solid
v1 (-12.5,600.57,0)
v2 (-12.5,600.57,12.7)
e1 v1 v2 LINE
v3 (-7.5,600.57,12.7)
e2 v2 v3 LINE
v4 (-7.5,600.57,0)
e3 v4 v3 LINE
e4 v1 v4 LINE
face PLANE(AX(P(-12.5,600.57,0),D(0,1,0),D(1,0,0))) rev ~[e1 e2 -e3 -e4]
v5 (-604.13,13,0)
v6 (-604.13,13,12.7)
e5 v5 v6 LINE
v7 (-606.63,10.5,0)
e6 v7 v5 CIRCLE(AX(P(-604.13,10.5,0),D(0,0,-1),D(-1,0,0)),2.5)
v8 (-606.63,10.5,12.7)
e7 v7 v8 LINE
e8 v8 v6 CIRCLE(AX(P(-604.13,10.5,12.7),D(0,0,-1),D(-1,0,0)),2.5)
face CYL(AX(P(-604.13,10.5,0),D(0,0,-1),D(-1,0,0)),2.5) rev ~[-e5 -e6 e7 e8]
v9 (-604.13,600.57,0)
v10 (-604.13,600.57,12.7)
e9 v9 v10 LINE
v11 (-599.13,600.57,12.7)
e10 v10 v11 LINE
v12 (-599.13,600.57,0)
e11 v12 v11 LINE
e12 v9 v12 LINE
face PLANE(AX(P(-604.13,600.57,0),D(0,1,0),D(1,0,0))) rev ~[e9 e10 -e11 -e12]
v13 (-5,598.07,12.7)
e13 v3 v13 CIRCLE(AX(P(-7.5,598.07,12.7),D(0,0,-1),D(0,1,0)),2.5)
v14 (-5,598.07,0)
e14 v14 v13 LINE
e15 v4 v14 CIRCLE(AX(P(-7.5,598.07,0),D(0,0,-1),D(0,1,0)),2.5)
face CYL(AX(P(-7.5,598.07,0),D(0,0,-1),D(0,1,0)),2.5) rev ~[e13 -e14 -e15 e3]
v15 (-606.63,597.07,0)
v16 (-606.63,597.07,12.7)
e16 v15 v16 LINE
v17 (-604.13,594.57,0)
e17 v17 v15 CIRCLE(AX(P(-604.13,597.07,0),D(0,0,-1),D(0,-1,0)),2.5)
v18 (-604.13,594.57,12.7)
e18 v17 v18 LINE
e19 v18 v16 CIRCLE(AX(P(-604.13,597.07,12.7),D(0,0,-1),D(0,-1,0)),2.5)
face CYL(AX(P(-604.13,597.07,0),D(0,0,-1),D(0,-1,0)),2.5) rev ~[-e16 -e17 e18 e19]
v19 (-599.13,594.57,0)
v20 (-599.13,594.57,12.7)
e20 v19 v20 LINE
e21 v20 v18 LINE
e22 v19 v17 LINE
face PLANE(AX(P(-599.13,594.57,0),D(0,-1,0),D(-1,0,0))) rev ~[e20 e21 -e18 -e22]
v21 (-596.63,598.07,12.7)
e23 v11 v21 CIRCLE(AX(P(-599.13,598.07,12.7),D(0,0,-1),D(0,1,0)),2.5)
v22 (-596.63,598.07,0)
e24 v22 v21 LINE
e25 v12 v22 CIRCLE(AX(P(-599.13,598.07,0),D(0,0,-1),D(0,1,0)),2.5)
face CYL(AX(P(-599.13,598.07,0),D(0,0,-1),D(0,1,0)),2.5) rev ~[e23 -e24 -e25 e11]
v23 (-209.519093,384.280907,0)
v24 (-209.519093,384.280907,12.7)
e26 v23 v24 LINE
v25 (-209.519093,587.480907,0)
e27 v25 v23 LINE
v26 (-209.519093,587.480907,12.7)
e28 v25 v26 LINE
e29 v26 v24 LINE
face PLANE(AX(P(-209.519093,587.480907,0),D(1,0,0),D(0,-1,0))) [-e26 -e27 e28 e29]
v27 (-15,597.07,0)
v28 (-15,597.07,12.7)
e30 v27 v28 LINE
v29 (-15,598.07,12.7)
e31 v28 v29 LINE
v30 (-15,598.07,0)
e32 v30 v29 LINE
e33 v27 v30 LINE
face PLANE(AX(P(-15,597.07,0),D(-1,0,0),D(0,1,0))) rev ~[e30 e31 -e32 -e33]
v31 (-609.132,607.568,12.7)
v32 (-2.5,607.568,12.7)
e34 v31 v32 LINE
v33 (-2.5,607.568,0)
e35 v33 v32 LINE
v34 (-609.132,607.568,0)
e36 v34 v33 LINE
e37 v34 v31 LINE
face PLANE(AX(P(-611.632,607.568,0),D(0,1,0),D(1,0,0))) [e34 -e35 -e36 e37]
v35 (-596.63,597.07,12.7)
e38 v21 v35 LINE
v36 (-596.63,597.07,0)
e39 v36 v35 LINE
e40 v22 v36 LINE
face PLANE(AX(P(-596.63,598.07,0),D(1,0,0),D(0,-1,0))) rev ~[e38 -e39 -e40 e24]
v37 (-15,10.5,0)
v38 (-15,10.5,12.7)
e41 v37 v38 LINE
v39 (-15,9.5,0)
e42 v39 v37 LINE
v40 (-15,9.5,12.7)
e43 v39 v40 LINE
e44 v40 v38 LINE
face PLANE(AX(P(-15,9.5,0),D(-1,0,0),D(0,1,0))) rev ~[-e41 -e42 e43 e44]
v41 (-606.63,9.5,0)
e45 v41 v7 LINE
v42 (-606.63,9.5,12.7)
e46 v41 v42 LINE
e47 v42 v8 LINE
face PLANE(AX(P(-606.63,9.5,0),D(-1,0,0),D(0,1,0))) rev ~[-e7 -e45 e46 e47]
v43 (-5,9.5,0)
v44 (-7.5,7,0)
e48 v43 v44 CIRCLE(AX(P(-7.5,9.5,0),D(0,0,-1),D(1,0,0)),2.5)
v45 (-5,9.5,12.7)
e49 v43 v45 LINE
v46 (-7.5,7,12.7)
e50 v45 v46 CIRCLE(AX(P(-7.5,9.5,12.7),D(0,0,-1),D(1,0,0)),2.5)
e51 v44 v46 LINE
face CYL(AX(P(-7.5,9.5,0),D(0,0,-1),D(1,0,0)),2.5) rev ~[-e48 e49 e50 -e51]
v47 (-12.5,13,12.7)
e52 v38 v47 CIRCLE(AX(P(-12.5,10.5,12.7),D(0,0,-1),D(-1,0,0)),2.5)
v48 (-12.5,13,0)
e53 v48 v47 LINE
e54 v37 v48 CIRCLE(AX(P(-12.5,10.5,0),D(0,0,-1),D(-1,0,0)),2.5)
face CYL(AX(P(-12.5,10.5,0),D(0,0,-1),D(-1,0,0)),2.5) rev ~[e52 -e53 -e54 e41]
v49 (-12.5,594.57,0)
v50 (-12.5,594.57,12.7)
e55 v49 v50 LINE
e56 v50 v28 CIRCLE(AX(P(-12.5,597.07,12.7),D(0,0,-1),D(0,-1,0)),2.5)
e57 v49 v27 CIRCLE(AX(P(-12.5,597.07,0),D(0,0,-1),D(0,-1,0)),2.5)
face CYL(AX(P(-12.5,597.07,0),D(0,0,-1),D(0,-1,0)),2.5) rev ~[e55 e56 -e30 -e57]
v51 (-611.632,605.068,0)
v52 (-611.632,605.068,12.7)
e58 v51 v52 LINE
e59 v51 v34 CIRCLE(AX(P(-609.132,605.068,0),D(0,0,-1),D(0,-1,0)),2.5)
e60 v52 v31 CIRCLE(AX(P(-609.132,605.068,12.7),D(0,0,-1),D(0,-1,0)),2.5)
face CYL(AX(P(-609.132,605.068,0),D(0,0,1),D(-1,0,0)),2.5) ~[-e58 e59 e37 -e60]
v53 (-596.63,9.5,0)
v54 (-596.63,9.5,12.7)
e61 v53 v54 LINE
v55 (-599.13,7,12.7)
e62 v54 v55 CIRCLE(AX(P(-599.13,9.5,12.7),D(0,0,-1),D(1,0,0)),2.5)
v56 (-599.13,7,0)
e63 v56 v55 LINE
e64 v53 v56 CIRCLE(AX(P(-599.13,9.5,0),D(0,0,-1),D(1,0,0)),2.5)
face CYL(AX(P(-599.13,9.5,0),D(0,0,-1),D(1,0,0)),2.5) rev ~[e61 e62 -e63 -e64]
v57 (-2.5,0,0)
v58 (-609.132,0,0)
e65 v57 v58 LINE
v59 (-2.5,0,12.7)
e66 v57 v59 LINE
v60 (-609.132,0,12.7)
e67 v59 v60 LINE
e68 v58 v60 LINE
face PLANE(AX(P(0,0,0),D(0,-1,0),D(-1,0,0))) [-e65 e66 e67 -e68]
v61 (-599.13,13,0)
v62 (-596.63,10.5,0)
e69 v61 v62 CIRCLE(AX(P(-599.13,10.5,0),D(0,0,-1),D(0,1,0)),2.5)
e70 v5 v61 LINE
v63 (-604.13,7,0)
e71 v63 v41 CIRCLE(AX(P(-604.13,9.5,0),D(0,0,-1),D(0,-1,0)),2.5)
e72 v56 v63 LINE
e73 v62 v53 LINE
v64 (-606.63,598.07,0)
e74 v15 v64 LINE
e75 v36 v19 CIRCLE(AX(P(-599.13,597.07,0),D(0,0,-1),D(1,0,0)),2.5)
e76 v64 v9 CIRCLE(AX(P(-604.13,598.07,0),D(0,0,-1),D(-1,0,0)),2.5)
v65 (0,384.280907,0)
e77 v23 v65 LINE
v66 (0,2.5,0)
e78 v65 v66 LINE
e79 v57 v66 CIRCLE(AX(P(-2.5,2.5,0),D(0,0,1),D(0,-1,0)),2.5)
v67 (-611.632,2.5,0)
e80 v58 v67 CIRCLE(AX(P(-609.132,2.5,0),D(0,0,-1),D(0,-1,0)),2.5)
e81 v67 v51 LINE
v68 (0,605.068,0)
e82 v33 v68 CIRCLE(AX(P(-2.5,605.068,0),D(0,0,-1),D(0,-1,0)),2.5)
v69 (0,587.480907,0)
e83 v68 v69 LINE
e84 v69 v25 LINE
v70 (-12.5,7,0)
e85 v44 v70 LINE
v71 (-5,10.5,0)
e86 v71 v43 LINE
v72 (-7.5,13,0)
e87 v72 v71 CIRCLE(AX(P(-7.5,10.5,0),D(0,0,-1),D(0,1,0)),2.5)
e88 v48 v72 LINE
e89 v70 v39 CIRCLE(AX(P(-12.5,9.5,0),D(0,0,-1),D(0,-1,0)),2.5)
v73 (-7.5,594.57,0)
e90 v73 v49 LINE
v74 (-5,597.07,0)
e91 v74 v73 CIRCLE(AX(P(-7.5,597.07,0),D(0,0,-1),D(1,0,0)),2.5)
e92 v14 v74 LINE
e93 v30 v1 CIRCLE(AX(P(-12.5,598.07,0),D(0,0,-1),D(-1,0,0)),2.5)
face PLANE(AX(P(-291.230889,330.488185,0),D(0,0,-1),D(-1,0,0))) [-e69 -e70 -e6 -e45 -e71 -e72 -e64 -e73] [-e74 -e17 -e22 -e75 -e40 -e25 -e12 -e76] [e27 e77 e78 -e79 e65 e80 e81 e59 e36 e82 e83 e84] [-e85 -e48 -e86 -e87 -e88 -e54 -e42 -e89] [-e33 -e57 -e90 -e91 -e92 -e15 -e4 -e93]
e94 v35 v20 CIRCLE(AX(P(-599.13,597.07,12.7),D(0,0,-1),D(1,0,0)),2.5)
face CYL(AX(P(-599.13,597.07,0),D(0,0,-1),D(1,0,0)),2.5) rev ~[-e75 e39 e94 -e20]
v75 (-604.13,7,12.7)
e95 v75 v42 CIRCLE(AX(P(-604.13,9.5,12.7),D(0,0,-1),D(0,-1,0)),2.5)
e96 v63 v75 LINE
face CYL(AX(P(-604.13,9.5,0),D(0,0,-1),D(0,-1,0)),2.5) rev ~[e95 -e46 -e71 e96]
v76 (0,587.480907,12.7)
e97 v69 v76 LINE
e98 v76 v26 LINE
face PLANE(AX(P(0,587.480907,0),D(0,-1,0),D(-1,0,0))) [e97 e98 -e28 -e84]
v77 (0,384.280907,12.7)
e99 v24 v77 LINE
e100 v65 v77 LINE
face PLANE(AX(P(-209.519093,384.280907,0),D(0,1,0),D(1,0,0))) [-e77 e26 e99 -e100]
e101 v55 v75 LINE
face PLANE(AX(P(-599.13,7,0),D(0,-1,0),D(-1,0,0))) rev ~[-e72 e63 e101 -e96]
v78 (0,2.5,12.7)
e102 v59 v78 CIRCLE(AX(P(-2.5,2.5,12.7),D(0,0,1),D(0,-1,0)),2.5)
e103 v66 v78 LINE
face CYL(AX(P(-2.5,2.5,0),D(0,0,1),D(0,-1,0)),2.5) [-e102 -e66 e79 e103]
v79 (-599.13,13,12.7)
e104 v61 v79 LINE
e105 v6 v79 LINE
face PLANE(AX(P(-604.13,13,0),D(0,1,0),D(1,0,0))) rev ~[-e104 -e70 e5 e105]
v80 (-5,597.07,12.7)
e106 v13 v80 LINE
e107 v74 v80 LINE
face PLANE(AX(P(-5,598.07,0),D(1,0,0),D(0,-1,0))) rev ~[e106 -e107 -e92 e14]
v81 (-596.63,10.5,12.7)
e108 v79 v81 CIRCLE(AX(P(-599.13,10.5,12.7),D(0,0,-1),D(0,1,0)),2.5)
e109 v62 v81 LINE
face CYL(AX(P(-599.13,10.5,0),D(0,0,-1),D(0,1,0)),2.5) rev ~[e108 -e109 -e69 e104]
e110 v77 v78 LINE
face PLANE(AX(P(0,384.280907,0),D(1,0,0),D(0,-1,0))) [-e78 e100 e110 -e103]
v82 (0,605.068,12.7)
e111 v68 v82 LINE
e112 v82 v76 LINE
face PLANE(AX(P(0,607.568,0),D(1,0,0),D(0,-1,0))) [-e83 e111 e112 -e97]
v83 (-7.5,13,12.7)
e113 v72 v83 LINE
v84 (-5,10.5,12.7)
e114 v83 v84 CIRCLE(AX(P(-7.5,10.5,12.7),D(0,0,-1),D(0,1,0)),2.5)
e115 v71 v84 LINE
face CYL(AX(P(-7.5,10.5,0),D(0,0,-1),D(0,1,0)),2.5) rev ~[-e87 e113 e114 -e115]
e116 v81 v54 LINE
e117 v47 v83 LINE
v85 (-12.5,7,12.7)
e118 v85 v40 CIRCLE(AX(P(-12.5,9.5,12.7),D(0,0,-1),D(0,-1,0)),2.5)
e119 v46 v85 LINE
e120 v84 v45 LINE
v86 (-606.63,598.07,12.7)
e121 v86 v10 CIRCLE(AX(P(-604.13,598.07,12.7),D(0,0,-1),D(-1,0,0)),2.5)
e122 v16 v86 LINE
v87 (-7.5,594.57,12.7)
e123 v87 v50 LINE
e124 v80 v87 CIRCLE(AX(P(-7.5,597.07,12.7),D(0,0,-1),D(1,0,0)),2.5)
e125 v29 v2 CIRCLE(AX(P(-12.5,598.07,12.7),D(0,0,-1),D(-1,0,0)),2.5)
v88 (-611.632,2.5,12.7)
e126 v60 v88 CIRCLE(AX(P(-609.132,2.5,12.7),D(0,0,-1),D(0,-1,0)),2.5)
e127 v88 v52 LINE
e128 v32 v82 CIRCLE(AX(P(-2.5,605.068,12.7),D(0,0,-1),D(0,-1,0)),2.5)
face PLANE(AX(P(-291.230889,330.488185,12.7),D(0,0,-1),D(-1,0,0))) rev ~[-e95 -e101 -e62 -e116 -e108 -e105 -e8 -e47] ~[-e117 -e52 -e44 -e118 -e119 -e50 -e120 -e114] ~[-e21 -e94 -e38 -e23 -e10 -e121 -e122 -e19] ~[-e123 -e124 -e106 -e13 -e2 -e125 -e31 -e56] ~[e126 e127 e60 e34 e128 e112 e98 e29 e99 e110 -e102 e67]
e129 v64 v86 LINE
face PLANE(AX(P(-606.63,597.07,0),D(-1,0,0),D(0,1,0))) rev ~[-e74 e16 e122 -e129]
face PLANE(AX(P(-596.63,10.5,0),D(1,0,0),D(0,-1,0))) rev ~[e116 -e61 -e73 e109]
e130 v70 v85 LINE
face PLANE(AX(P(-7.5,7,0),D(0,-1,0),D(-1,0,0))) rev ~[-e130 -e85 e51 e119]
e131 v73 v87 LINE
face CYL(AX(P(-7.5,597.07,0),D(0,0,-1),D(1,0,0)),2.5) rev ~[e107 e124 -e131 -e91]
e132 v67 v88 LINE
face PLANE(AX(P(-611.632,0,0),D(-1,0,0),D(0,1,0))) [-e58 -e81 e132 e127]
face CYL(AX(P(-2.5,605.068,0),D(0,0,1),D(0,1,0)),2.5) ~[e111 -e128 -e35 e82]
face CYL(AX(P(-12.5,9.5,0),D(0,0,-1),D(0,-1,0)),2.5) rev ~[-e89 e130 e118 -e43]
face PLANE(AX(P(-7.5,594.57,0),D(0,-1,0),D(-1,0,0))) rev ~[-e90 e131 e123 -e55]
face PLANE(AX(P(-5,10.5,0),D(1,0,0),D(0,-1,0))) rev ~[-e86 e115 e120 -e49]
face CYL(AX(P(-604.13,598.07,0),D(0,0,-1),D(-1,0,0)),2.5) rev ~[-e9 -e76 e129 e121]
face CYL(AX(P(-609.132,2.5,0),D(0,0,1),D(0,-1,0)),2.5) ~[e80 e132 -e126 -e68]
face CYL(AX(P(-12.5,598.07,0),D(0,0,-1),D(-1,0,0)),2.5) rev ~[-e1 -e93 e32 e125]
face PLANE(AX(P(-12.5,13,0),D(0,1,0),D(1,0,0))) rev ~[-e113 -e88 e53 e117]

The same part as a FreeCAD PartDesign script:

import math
import FreeCAD as App
import Part
import Sketcher
Q = App.Units.Quantity


def edges_at(feature, points):
    """Names of the edges that pass closest to the given points."""
    edges = feature.Shape.Edges
    near = lambda p: min(range(len(edges)), key=lambda i: edges[i].distToShape(Part.Vertex(*p))[0])
    return sorted({f"Edge{near(p) + 1}" for p in points})


def add_polygon(sketch, points):
    """Adds a closed chain of lines whose ends are joined by coincident constraints."""
    first, n = sketch.GeometryCount, len(points)
    for a, b in zip(points, points[1:] + points[:1]):
        sketch.addGeometry(Part.LineSegment(App.Vector(*a, 0), App.Vector(*b, 0)), False)
    for i in range(n):
        sketch.addConstraint(Sketcher.Constraint("Coincident", first + i, 2, first + (i + 1) % n, 1))

doc = App.newDocument("Part")
body = doc.addObject("PartDesign::Body", "Body")

# Sketch on XY plane
sketch1 = doc.addObject("Sketcher::SketchObject", "Sketch")
body.addObject(sketch1)
sketch1.AttachmentSupport = (doc.XY_Plane, [""])
sketch1.MapMode = "FlatFace"
add_polygon(sketch1, [(-611.632, 0), (0, 0), (0, 384.280907), (-209.519093, 384.280907), (-209.519093, 587.480907), (0, 587.480907), (0, 607.568), (-611.632, 607.568)])  # lines 0-7
sketch1.addGeometry(Part.LineSegment(App.Vector(-5, 10.5, 0), App.Vector(-5, 9.5, 0)), False)  # 8
sketch1.addGeometry(Part.ArcOfCircle(Part.Circle(App.Vector(-7.5, 9.5, 0), App.Vector(0, 0, 1), 2.5), math.radians(-90), math.radians(0)), False)  # 9
sketch1.addGeometry(Part.LineSegment(App.Vector(-7.5, 7, 0), App.Vector(-12.5, 7, 0)), False)  # 10
sketch1.addGeometry(Part.ArcOfCircle(Part.Circle(App.Vector(-12.5, 9.5, 0), App.Vector(0, 0, 1), 2.5), math.radians(180), math.radians(270)), False)  # 11
sketch1.addGeometry(Part.LineSegment(App.Vector(-15, 9.5, 0), App.Vector(-15, 10.5, 0)), False)  # 12
sketch1.addGeometry(Part.ArcOfCircle(Part.Circle(App.Vector(-12.5, 10.5, 0), App.Vector(0, 0, 1), 2.5), math.radians(90), math.radians(180)), False)  # 13
sketch1.addGeometry(Part.LineSegment(App.Vector(-12.5, 13, 0), App.Vector(-7.5, 13, 0)), False)  # 14
sketch1.addGeometry(Part.ArcOfCircle(Part.Circle(App.Vector(-7.5, 10.5, 0), App.Vector(0, 0, 1), 2.5), math.radians(0), math.radians(90)), False)  # 15
sketch1.addGeometry(Part.LineSegment(App.Vector(-596.63, 10.5, 0), App.Vector(-596.63, 9.5, 0)), False)  # 16
sketch1.addGeometry(Part.ArcOfCircle(Part.Circle(App.Vector(-599.13, 9.5, 0), App.Vector(0, 0, 1), 2.5), math.radians(-90), math.radians(0)), False)  # 17
sketch1.addGeometry(Part.LineSegment(App.Vector(-599.13, 7, 0), App.Vector(-604.13, 7, 0)), False)  # 18
sketch1.addGeometry(Part.ArcOfCircle(Part.Circle(App.Vector(-604.13, 9.5, 0), App.Vector(0, 0, 1), 2.5), math.radians(180), math.radians(270)), False)  # 19
sketch1.addGeometry(Part.LineSegment(App.Vector(-606.63, 9.5, 0), App.Vector(-606.63, 10.5, 0)), False)  # 20
sketch1.addGeometry(Part.ArcOfCircle(Part.Circle(App.Vector(-604.13, 10.5, 0), App.Vector(0, 0, 1), 2.5), math.radians(90), math.radians(180)), False)  # 21
sketch1.addGeometry(Part.LineSegment(App.Vector(-604.13, 13, 0), App.Vector(-599.13, 13, 0)), False)  # 22
sketch1.addGeometry(Part.ArcOfCircle(Part.Circle(App.Vector(-599.13, 10.5, 0), App.Vector(0, 0, 1), 2.5), math.radians(0), math.radians(90)), False)  # 23
sketch1.addGeometry(Part.LineSegment(App.Vector(-5, 598.07, 0), App.Vector(-5, 597.07, 0)), False)  # 24
sketch1.addGeometry(Part.ArcOfCircle(Part.Circle(App.Vector(-7.5, 597.07, 0), App.Vector(0, 0, 1), 2.5), math.radians(-90), math.radians(0)), False)  # 25
sketch1.addGeometry(Part.LineSegment(App.Vector(-7.5, 594.57, 0), App.Vector(-12.5, 594.57, 0)), False)  # 26
sketch1.addGeometry(Part.ArcOfCircle(Part.Circle(App.Vector(-12.5, 597.07, 0), App.Vector(0, 0, 1), 2.5), math.radians(180), math.radians(270)), False)  # 27
sketch1.addGeometry(Part.LineSegment(App.Vector(-15, 597.07, 0), App.Vector(-15, 598.07, 0)), False)  # 28
sketch1.addGeometry(Part.ArcOfCircle(Part.Circle(App.Vector(-12.5, 598.07, 0), App.Vector(0, 0, 1), 2.5), math.radians(90), math.radians(180)), False)  # 29
sketch1.addGeometry(Part.LineSegment(App.Vector(-12.5, 600.57, 0), App.Vector(-7.5, 600.57, 0)), False)  # 30
sketch1.addGeometry(Part.ArcOfCircle(Part.Circle(App.Vector(-7.5, 598.07, 0), App.Vector(0, 0, 1), 2.5), math.radians(0), math.radians(90)), False)  # 31
sketch1.addGeometry(Part.LineSegment(App.Vector(-596.63, 598.07, 0), App.Vector(-596.63, 597.07, 0)), False)  # 32
sketch1.addGeometry(Part.ArcOfCircle(Part.Circle(App.Vector(-599.13, 597.07, 0), App.Vector(0, 0, 1), 2.5), math.radians(-90), math.radians(0)), False)  # 33
sketch1.addGeometry(Part.LineSegment(App.Vector(-599.13, 594.57, 0), App.Vector(-604.13, 594.57, 0)), False)  # 34
sketch1.addGeometry(Part.ArcOfCircle(Part.Circle(App.Vector(-604.13, 597.07, 0), App.Vector(0, 0, 1), 2.5), math.radians(180), math.radians(270)), False)  # 35
sketch1.addGeometry(Part.LineSegment(App.Vector(-606.63, 597.07, 0), App.Vector(-606.63, 598.07, 0)), False)  # 36
sketch1.addGeometry(Part.ArcOfCircle(Part.Circle(App.Vector(-604.13, 598.07, 0), App.Vector(0, 0, 1), 2.5), math.radians(90), math.radians(180)), False)  # 37
sketch1.addGeometry(Part.LineSegment(App.Vector(-604.13, 600.57, 0), App.Vector(-599.13, 600.57, 0)), False)  # 38
sketch1.addGeometry(Part.ArcOfCircle(Part.Circle(App.Vector(-599.13, 598.07, 0), App.Vector(0, 0, 1), 2.5), math.radians(0), math.radians(90)), False)  # 39
sketch1.addConstraint([
    Sketcher.Constraint("Tangent", 8, 2, 9, 2),
    Sketcher.Constraint("Tangent", 9, 1, 10, 1),
    Sketcher.Constraint("Tangent", 10, 2, 11, 2),
    Sketcher.Constraint("Tangent", 11, 1, 12, 1),
    Sketcher.Constraint("Tangent", 12, 2, 13, 2),
    Sketcher.Constraint("Tangent", 13, 1, 14, 1),
    Sketcher.Constraint("Tangent", 14, 2, 15, 2),
    Sketcher.Constraint("Tangent", 15, 1, 8, 1),
    Sketcher.Constraint("Tangent", 16, 2, 17, 2),
    Sketcher.Constraint("Tangent", 17, 1, 18, 1),
    Sketcher.Constraint("Tangent", 18, 2, 19, 2),
    Sketcher.Constraint("Tangent", 19, 1, 20, 1),
    Sketcher.Constraint("Tangent", 20, 2, 21, 2),
    Sketcher.Constraint("Tangent", 21, 1, 22, 1),
    Sketcher.Constraint("Tangent", 22, 2, 23, 2),
    Sketcher.Constraint("Tangent", 23, 1, 16, 1),
    Sketcher.Constraint("Tangent", 24, 2, 25, 2),
    Sketcher.Constraint("Tangent", 25, 1, 26, 1),
    Sketcher.Constraint("Tangent", 26, 2, 27, 2),
    Sketcher.Constraint("Tangent", 27, 1, 28, 1),
    Sketcher.Constraint("Tangent", 28, 2, 29, 2),
    Sketcher.Constraint("Tangent", 29, 1, 30, 1),
    Sketcher.Constraint("Tangent", 30, 2, 31, 2),
    Sketcher.Constraint("Tangent", 31, 1, 24, 1),
    Sketcher.Constraint("Tangent", 32, 2, 33, 2),
    Sketcher.Constraint("Tangent", 33, 1, 34, 1),
    Sketcher.Constraint("Tangent", 34, 2, 35, 2),
    Sketcher.Constraint("Tangent", 35, 1, 36, 1),
    Sketcher.Constraint("Tangent", 36, 2, 37, 2),
    Sketcher.Constraint("Tangent", 37, 1, 38, 1),
    Sketcher.Constraint("Tangent", 38, 2, 39, 2),
    Sketcher.Constraint("Tangent", 39, 1, 32, 1),
    Sketcher.Constraint("Horizontal", 0),
    Sketcher.Constraint("Vertical", 1),
    Sketcher.Constraint("Horizontal", 2),
    Sketcher.Constraint("Vertical", 3),
    Sketcher.Constraint("Horizontal", 4),
    Sketcher.Constraint("Vertical", 5),
    Sketcher.Constraint("Horizontal", 6),
    Sketcher.Constraint("Vertical", 7),
    Sketcher.Constraint("Vertical", 8),
    Sketcher.Constraint("Horizontal", 10),
    Sketcher.Constraint("Vertical", 12),
    Sketcher.Constraint("Horizontal", 14),
    Sketcher.Constraint("Vertical", 16),
    Sketcher.Constraint("Horizontal", 18),
    Sketcher.Constraint("Vertical", 20),
    Sketcher.Constraint("Horizontal", 22),
    Sketcher.Constraint("Vertical", 24),
    Sketcher.Constraint("Horizontal", 26),
    Sketcher.Constraint("Vertical", 28),
    Sketcher.Constraint("Horizontal", 30),
    Sketcher.Constraint("Vertical", 32),
    Sketcher.Constraint("Horizontal", 34),
    Sketcher.Constraint("Vertical", 36),
    Sketcher.Constraint("Horizontal", 38),
    Sketcher.Constraint("Coincident", 0, 2, -1, 1),
    Sketcher.Constraint("Equal", 9, 11),
    Sketcher.Constraint("Equal", 11, 13),
    Sketcher.Constraint("Equal", 13, 15),
    Sketcher.Constraint("Equal", 15, 17),
    Sketcher.Constraint("Equal", 17, 19),
    Sketcher.Constraint("Equal", 19, 21),
    Sketcher.Constraint("Equal", 21, 23),
    Sketcher.Constraint("Equal", 23, 25),
    Sketcher.Constraint("Equal", 25, 27),
    Sketcher.Constraint("Equal", 27, 29),
    Sketcher.Constraint("Equal", 29, 31),
    Sketcher.Constraint("Equal", 31, 33),
    Sketcher.Constraint("Equal", 33, 35),
    Sketcher.Constraint("Equal", 35, 37),
    Sketcher.Constraint("Equal", 37, 39),
    Sketcher.Constraint("PointOnObject", 4, 2, -2),
    Sketcher.Constraint("Horizontal", 11, 3, 17, 3),
    Sketcher.Constraint("Horizontal", 15, 3, 21, 3),
    Sketcher.Constraint("Horizontal", 27, 3, 33, 3),
    Sketcher.Constraint("Horizontal", 31, 3, 37, 3),
    Sketcher.Constraint("Vertical", 15, 3, 25, 3),
    Sketcher.Constraint("Vertical", 13, 3, 27, 3),
    Sketcher.Constraint("Vertical", 23, 3, 33, 3),
    Sketcher.Constraint("Vertical", 21, 3, 35, 3),
    Sketcher.Constraint("Equal", 14, 18),
    Sketcher.Constraint("Equal", 20, 24),
    Sketcher.Constraint("DistanceY", 3, 1, 3, 2, Q("8 in")),
    Sketcher.Constraint("DistanceX", 0, 1, 0, 2, Q("24.08 in")),
    Sketcher.Constraint("DistanceY", 7, 2, 7, 1, Q("23.92 in")),
    Sketcher.Constraint("Radius", 9, 2.5),
    Sketcher.Constraint("DistanceX", 10, 2, 10, 1, 5.0),
    Sketcher.Constraint("DistanceY", 8, 2, 8, 1, 1.0),
    Sketcher.Constraint("DistanceX", 9, 3, -1, 1, 7.5),
    Sketcher.Constraint("DistanceY", -1, 1, 9, 3, 9.5),
    Sketcher.Constraint("DistanceX", 17, 3, -1, 1, 599.13),
    Sketcher.Constraint("DistanceY", -1, 1, 25, 3, 597.07),
    Sketcher.Constraint("DistanceX", 2, 2, 2, 1, 209.519093),
    Sketcher.Constraint("DistanceY", 1, 1, 1, 2, 384.280907),
])
pad1 = doc.addObject("PartDesign::Pad", "Pad")
body.addObject(pad1)
pad1.Profile = sketch1
pad1.Length = Q("0.5 in")
doc.recompute()

fillet = doc.addObject("PartDesign::Fillet", "Fillet")
body.addObject(fillet)
fillet.Base = (pad1, edges_at(pad1, [
    (0, 0, 6.35),
    (-611.632, 0, 6.35),
    (-611.632, 607.568, 6.35),
    (0, 607.568, 6.35),
]))
fillet.Radius = 2.5

doc.recompute()
